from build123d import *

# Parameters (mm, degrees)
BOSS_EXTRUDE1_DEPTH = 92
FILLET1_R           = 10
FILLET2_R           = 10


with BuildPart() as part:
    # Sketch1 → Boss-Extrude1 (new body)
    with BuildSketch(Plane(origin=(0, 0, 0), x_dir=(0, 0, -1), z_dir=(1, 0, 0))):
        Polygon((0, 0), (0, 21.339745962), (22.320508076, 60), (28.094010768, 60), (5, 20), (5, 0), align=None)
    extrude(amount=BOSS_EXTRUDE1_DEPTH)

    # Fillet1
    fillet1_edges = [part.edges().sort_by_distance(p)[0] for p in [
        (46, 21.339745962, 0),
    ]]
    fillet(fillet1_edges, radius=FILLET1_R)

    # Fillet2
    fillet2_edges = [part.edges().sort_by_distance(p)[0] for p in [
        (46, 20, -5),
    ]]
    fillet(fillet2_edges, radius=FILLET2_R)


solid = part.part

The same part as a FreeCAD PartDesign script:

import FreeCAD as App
import Part
import Sketcher
from FreeCAD import Vector
Q = App.Units.Quantity


def edges_at(feature, points):
    """Names of the edges that pass closest to the given points."""
    edges = feature.Shape.Edges
    near = lambda p: min(range(len(edges)), key=lambda i: edges[i].distToShape(Part.Vertex(*p))[0])
    return sorted({f"Edge{near(p) + 1}" for p in points})


def add_polygon(sketch, points):
    """Adds a closed chain of lines whose ends are joined by coincident constraints."""
    first, n = sketch.GeometryCount, len(points)
    for a, b in zip(points, points[1:] + points[:1]):
        sketch.addGeometry(Part.LineSegment(App.Vector(*a, 0), App.Vector(*b, 0)), False)
    for i in range(n):
        sketch.addConstraint(Sketcher.Constraint("Coincident", first + i, 2, first + (i + 1) % n, 1))

doc = App.newDocument("Part")
body = doc.addObject("PartDesign::Body", "Body")

sketch1 = body.newObject("Sketcher::SketchObject", "Sketch")
sketch1.AttachmentSupport = (doc.getObject("YZ_Plane"), [""])
sketch1.MapMode = "FlatFace"
add_polygon(sketch1, [(21, 0), (0, 0), (0, -5), (20, -5), (60, -28), (60, -22)])
sketch1.addConstraint(Sketcher.Constraint("Horizontal", 0))
sketch1.addConstraint(Sketcher.Constraint("Vertical", 1))
sketch1.addConstraint(Sketcher.Constraint("Horizontal", 2))
sketch1.addConstraint(Sketcher.Constraint("Vertical", 4))
sketch1.addConstraint(Sketcher.Constraint("Coincident", 0, 2, -1, 1))
sketch1.addConstraint(Sketcher.Constraint("Parallel", 3, 5))
sketch1.addConstraint(Sketcher.Constraint("DistanceX", 2, 1, 2, 2, Q("20 mm")))
sketch1.addConstraint(Sketcher.Constraint("DistanceY", 1, 2, 1, 1, Q("5 mm")))
sketch1.addConstraint(Sketcher.Constraint("Angle", 3, Q("-30 deg")))
sketch1.addConstraint(Sketcher.Constraint("DistanceX", -1, 1, 3, 2, Q("60 mm")))
sketch1.addConstraint(Sketcher.Constraint("DistanceX", 0, 2, 0, 1, Q("21.339746 mm")))
pad1 = body.newObject("PartDesign::Pad", "Pad")
pad1.Profile = sketch1
pad1.Length = 92
doc.recompute()

fillet = body.newObject("PartDesign::Fillet", "Fillet")
fillet.Base = (pad1, edges_at(pad1, [(46, 21.34, 0)]))
fillet.Radius = 10
doc.recompute()

fillet2 = body.newObject("PartDesign::Fillet", "Fillet001")
fillet2.Base = (fillet, edges_at(fillet, [(46, 20, -5)]))
fillet2.Radius = 10

doc.recompute()
